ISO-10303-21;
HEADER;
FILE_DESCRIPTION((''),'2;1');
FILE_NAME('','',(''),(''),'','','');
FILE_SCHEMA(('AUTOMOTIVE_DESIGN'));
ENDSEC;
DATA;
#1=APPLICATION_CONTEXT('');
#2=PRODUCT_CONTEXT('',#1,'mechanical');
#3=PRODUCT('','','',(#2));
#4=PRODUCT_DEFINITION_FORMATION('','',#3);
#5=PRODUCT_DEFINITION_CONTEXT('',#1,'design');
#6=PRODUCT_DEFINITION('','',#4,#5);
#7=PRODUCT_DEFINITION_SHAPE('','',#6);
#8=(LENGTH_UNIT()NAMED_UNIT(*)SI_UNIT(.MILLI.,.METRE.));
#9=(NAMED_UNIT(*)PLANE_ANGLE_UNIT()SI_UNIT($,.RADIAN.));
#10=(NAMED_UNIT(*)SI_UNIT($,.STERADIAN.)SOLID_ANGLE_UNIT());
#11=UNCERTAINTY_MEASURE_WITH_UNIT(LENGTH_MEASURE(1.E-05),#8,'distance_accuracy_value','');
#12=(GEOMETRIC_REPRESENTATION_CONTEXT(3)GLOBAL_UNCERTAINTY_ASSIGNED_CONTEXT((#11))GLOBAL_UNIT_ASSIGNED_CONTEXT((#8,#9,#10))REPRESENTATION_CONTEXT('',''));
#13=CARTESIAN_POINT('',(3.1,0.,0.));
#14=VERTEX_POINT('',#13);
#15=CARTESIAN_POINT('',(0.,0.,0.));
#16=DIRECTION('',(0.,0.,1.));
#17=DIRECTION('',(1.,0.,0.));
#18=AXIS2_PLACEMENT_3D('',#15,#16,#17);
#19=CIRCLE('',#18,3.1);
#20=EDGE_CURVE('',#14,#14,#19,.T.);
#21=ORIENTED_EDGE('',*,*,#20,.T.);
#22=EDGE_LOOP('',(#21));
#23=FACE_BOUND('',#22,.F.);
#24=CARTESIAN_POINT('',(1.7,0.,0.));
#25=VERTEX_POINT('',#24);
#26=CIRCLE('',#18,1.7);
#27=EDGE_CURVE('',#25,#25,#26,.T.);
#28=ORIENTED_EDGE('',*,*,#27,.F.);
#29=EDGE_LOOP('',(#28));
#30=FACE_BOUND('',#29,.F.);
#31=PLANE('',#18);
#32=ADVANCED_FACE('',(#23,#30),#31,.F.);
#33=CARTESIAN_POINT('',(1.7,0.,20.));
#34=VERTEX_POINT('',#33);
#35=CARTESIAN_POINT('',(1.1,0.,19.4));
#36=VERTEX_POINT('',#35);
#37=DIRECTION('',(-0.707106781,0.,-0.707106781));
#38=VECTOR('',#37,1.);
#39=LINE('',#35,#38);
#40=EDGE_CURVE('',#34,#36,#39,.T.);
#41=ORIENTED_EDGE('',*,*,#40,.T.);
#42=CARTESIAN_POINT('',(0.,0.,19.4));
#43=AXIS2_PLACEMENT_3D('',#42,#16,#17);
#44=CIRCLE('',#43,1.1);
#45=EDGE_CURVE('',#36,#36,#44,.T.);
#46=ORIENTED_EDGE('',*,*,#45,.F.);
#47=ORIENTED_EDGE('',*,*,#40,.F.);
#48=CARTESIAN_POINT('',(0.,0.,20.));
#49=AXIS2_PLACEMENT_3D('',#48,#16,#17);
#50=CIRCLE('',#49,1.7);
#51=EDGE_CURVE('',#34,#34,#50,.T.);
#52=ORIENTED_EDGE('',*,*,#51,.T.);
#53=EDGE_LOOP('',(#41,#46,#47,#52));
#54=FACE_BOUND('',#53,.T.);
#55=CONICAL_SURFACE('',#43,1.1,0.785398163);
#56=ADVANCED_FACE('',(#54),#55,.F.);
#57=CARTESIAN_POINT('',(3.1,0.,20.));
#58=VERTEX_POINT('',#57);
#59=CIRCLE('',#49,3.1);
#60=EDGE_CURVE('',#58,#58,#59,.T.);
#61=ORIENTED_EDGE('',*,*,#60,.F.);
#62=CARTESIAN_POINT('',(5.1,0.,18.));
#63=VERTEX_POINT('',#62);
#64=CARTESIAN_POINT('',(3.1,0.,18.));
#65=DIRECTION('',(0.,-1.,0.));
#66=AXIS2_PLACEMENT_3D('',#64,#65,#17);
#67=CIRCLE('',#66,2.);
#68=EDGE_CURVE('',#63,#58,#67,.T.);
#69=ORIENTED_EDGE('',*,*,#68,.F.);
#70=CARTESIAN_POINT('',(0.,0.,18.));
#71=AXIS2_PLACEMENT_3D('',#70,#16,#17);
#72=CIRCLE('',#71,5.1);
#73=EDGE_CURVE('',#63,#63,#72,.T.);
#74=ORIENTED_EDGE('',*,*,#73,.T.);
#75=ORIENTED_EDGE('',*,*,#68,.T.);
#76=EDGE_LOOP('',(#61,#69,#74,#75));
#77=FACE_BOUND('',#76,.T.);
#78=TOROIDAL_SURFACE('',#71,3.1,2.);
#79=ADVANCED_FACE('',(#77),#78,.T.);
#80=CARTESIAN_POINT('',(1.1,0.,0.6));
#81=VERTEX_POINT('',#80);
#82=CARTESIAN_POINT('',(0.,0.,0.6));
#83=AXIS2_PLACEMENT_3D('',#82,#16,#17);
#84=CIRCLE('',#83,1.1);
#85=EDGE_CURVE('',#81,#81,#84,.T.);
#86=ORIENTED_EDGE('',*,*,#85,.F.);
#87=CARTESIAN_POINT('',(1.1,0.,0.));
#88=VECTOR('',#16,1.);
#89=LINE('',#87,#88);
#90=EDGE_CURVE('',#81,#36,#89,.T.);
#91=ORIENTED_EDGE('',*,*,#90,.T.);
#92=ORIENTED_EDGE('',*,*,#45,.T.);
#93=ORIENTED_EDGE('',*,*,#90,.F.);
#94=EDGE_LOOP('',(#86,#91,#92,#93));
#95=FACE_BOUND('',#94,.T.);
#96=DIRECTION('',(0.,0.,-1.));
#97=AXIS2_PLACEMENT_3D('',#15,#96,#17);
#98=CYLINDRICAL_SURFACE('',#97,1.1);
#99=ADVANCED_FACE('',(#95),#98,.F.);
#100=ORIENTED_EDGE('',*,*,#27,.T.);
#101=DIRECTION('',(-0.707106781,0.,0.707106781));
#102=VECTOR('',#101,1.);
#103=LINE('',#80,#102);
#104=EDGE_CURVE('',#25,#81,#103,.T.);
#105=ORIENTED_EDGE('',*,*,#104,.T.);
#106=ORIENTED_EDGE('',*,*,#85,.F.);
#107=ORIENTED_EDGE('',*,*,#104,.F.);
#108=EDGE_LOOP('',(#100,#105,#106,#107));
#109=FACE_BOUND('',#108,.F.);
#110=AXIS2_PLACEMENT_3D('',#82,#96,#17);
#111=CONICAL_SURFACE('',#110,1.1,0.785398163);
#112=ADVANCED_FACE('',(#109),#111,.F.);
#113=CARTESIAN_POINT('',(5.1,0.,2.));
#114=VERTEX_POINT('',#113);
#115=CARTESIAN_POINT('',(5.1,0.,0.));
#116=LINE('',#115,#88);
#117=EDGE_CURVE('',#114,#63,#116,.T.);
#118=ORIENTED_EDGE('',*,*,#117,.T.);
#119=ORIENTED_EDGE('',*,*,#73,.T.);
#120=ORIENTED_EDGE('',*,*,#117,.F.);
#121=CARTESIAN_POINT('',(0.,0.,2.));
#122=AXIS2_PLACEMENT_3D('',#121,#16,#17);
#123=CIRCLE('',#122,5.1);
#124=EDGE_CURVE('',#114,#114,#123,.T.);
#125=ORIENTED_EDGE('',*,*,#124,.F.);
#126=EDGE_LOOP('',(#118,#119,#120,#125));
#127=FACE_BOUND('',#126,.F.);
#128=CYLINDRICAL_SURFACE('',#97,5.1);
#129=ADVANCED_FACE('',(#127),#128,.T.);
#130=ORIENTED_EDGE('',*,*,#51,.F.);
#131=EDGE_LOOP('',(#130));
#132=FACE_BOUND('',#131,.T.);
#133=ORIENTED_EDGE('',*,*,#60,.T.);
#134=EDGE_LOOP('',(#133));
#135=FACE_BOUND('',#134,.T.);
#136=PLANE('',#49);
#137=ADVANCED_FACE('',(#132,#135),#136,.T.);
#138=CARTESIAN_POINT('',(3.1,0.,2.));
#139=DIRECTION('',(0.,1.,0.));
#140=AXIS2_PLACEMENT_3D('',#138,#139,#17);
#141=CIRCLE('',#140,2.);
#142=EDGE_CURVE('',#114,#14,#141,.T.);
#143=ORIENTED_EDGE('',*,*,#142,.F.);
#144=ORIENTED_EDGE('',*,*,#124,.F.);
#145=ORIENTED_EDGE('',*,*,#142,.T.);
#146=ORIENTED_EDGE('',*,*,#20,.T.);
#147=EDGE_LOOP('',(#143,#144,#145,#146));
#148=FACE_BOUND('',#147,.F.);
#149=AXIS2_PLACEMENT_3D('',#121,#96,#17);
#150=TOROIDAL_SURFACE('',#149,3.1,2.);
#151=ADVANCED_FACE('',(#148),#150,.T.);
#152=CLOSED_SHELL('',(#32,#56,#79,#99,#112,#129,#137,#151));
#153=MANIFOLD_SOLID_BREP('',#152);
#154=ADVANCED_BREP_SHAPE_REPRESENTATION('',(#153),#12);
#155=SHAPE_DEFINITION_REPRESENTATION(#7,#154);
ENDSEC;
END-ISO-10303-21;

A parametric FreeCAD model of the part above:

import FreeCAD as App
import Part
import Sketcher
from FreeCAD import Vector
Q = App.Units.Quantity


def edges_at(feature, points):
    """Names of the edges that pass closest to the given points."""
    edges = feature.Shape.Edges
    near = lambda p: min(range(len(edges)), key=lambda i: edges[i].distToShape(Part.Vertex(*p))[0])
    return sorted({f"Edge{near(p) + 1}" for p in points})

doc = App.newDocument("Part")
body = doc.addObject("PartDesign::Body", "Body")

sketch1 = body.newObject("Sketcher::SketchObject", "Sketch")
sketch1.AttachmentSupport = (doc.getObject("XY_Plane"), [""])
sketch1.MapMode = "FlatFace"
sketch1.addGeometry(Part.Circle(Vector(0, 0, 0), Vector(0, 0, 1), 5.1), False)
sketch1.addGeometry(Part.Circle(Vector(0, 0, 0), Vector(0, 0, 1), 1.1), False)
sketch1.addConstraint(Sketcher.Constraint("Coincident", 0, 3, -1, 1))
sketch1.addConstraint(Sketcher.Constraint("Coincident", 1, 3, -1, 1))
sketch1.addConstraint(Sketcher.Constraint("Diameter", 0, Q("10.2 mm")))
sketch1.addConstraint(Sketcher.Constraint("Diameter", 1, Q("2.2 mm")))
pad1 = body.newObject("PartDesign::Pad", "Pad")
pad1.Profile = sketch1
pad1.Length = 20
doc.recompute()

fillet = body.newObject("PartDesign::Fillet", "Fillet")
fillet.Base = (pad1, edges_at(pad1, [(-5.1, 0, 20), (-5.1, 0, 0)]))
fillet.Radius = 2
doc.recompute()

chamfer = body.newObject("PartDesign::Chamfer", "Chamfer")
chamfer.Base = (fillet, edges_at(fillet, [(-1.1, 0, 20), (-1.1, 0, 0)]))
chamfer.Size = 0.6

doc.recompute()
